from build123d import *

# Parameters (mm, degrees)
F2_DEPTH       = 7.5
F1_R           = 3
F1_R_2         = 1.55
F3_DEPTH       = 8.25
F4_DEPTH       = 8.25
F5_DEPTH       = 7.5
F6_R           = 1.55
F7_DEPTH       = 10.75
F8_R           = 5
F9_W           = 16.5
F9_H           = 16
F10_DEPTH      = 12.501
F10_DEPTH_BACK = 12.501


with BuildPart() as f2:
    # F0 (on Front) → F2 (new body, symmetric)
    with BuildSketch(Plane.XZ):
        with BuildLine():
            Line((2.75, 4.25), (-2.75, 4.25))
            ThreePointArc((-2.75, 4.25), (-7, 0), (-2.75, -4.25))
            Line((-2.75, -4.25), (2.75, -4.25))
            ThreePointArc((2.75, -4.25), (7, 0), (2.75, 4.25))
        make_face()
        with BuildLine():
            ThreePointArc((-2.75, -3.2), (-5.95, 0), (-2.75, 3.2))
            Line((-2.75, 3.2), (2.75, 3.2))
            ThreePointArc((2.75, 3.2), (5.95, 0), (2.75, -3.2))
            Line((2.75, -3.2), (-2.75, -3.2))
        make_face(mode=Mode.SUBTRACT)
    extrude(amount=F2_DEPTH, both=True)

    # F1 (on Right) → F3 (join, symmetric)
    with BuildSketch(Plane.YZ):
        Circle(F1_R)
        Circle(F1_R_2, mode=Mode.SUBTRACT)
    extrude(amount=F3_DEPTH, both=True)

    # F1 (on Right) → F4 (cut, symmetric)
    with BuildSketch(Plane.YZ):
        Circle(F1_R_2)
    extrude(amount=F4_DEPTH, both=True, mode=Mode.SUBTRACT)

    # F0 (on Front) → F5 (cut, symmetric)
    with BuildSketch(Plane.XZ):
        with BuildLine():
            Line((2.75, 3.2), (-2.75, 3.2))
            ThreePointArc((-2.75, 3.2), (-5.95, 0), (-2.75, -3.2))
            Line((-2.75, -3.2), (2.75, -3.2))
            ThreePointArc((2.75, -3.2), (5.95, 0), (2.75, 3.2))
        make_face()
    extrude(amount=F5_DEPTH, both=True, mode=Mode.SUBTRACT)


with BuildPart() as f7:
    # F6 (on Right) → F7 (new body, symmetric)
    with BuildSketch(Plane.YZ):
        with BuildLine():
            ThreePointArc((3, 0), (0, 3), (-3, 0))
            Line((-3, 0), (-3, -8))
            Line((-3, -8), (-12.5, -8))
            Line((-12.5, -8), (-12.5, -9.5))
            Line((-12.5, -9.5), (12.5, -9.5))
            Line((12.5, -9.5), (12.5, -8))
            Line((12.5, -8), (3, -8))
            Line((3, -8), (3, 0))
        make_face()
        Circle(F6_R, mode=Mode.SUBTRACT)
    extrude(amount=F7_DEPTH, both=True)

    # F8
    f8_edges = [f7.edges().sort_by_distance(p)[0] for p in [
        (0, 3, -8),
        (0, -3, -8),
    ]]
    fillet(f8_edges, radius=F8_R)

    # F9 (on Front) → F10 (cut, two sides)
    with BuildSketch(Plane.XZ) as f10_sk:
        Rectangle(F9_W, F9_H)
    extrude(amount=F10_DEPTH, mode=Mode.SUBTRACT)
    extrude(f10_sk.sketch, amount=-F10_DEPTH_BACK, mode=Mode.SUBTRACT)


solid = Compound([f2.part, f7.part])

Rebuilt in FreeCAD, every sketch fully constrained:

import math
import FreeCAD as App
import Part
import Sketcher
from FreeCAD import Vector


def edges_at(feature, points):
    """Names of the edges that pass closest to the given points."""
    edges = feature.Shape.Edges
    near = lambda p: min(range(len(edges)), key=lambda i: edges[i].distToShape(Part.Vertex(*p))[0])
    return sorted({f"Edge{near(p) + 1}" for p in points})

doc = App.newDocument("Part")
params = doc.addObject("Spreadsheet::Sheet", "Params")
for row, (alias, value) in enumerate([
    ("sketch1_radius", "3.2 mm"),
    ("sketch1_radius2", "4.25 mm"),
    ("sketch1_width", "5.5 mm"),
    ("pad1_length", "15 mm"),
    ("sketch2_diameter", "6 mm"),
    ("sketch2_diameter2", "3.1 mm"),
    ("pad2_length", "16.5 mm"),
    ("sketch3_diameter", "3.1 mm"),
    ("pocket1_length", "16.5 mm"),
    ("sketch4_radius", "3.2 mm"),
    ("sketch4_width", "5.5 mm"),
    ("pocket2_length", "15 mm"),
    ("sketch5_radius", "3 mm"),
    ("sketch5_diameter", "3.1 mm"),
    ("sketch5_width", "25 mm"),
    ("sketch5_height", "8 mm"),
    ("sketch5_height2", "1.5 mm"),
    ("pad3_length", "21.5 mm"),
    ("fillet_radius", "5 mm"),
    ("sketch6_height", "16 mm"),
    ("sketch6_width", "16.5 mm"),
], start=1):
    params.set(f"A{row}", alias)
    params.set(f"B{row}", "=" + value)
    params.setAlias(f"B{row}", alias)

body = doc.addObject("PartDesign::Body", "Body")

# Sketch on XZ plane
sketch1 = body.newObject("Sketcher::SketchObject", "Sketch")
sketch1.AttachmentSupport = (doc.getObject("XZ_Plane"), [""])
sketch1.MapMode = "FlatFace"
sketch1.addGeometry([
    Part.LineSegment(Vector(2.8, 4.2, 0), Vector(-2.8, 4.2, 0)),  # 0
    Part.ArcOfCircle(Part.Circle(Vector(-2.8, 0, 0), Vector(0, 0, 1), 4.2), math.radians(90), math.radians(270)),  # 1
    Part.LineSegment(Vector(-2.8, -4.2, 0), Vector(2.8, -4.2, 0)),  # 2
    Part.ArcOfCircle(Part.Circle(Vector(2.8, 0, 0), Vector(0, 0, 1), 4.2), math.radians(-90), math.radians(90)),  # 3
    Part.LineSegment(Vector(2.8, -3.2, 0), Vector(-2.8, -3.2, 0)),  # 4
    Part.ArcOfCircle(Part.Circle(Vector(-2.8, 0, 0), Vector(0, 0, 1), 3.2), math.radians(90), math.radians(270)),  # 5
    Part.LineSegment(Vector(-2.8, 3.2, 0), Vector(2.8, 3.2, 0)),  # 6
    Part.ArcOfCircle(Part.Circle(Vector(2.8, 0, 0), Vector(0, 0, 1), 3.2), math.radians(-90), math.radians(90)),  # 7
], False)
sketch1.addConstraint([
    Sketcher.Constraint("Tangent", 0, 2, 1, 1),
    Sketcher.Constraint("Tangent", 1, 2, 2, 1),
    Sketcher.Constraint("Tangent", 2, 2, 3, 1),
    Sketcher.Constraint("Tangent", 3, 2, 0, 1),
    Sketcher.Constraint("Tangent", 4, 2, 5, 2),
    Sketcher.Constraint("Tangent", 5, 1, 6, 1),
    Sketcher.Constraint("Tangent", 6, 2, 7, 2),
    Sketcher.Constraint("Tangent", 7, 1, 4, 1),
    Sketcher.Constraint("Horizontal", 0),
    Sketcher.Constraint("Horizontal", 2),
    Sketcher.Constraint("Horizontal", 4),
    Sketcher.Constraint("Horizontal", 6),
    Sketcher.Constraint("Coincident", 5, 3, 1, 3),
    Sketcher.Constraint("Symmetric", 1, 3, 3, 3, -1, 1),
    Sketcher.Constraint("Vertical", 7, 3, 2, 2),
    Sketcher.Constraint("Radius", 5, 3.2),
    Sketcher.Constraint("Radius", 1, 4.25),
    Sketcher.Constraint("DistanceX", 0, 2, 0, 1, 5.5),
])
sketch1.setExpression("Constraints[15]", "Params.sketch1_radius")
sketch1.setExpression("Constraints[16]", "Params.sketch1_radius2")
sketch1.setExpression("Constraints[17]", "Params.sketch1_width")
pad1 = body.newObject("PartDesign::Pad", "Pad")
pad1.Profile = sketch1
pad1.setExpression("Length", "Params.pad1_length")
pad1.Midplane = True

# Sketch on YZ plane
sketch2 = body.newObject("Sketcher::SketchObject", "Sketch001")
sketch2.AttachmentSupport = (doc.getObject("YZ_Plane"), [""])
sketch2.MapMode = "FlatFace"
sketch2.addGeometry([
    Part.Circle(Vector(0, 0, 0), Vector(0, 0, 1), 3),
    Part.Circle(Vector(0, 0, 0), Vector(0, 0, 1), 1.6),
], False)
sketch2.addConstraint([
    Sketcher.Constraint("Coincident", 0, 3, -1, 1),
    Sketcher.Constraint("Coincident", 1, 3, -1, 1),
    Sketcher.Constraint("Diameter", 0, 6.0),
    Sketcher.Constraint("Diameter", 1, 3.1),
])
sketch2.setExpression("Constraints[2]", "Params.sketch2_diameter")
sketch2.setExpression("Constraints[3]", "Params.sketch2_diameter2")
pad2 = body.newObject("PartDesign::Pad", "Pad001")
pad2.Profile = sketch2
pad2.setExpression("Length", "Params.pad2_length")
pad2.Midplane = True

# Sketch on YZ plane
sketch3 = body.newObject("Sketcher::SketchObject", "Sketch002")
sketch3.AttachmentSupport = (doc.getObject("YZ_Plane"), [""])
sketch3.MapMode = "FlatFace"
sketch3.addGeometry(Part.Circle(Vector(0, 0, 0), Vector(0, 0, 1), 1.6), False)
sketch3.addConstraint([
    Sketcher.Constraint("Coincident", 0, 3, -1, 1),
    Sketcher.Constraint("Diameter", 0, 3.1),
])
sketch3.setExpression("Constraints[1]", "Params.sketch3_diameter")
pocket1 = body.newObject("PartDesign::Pocket", "Pocket")
pocket1.Profile = sketch3
pocket1.setExpression("Length", "Params.pocket1_length")
pocket1.Midplane = True

# Sketch on XZ plane
sketch4 = body.newObject("Sketcher::SketchObject", "Sketch003")
sketch4.AttachmentSupport = (doc.getObject("XZ_Plane"), [""])
sketch4.MapMode = "FlatFace"
sketch4.addGeometry([
    Part.LineSegment(Vector(2.8, 3.2, 0), Vector(-2.8, 3.2, 0)),
    Part.ArcOfCircle(Part.Circle(Vector(-2.8, 0, 0), Vector(0, 0, 1), 3.2), math.radians(90), math.radians(270)),
    Part.LineSegment(Vector(-2.8, -3.2, 0), Vector(2.8, -3.2, 0)),
    Part.ArcOfCircle(Part.Circle(Vector(2.8, 0, 0), Vector(0, 0, 1), 3.2), math.radians(-90), math.radians(90)),
], False)
sketch4.addConstraint([
    Sketcher.Constraint("Tangent", 0, 2, 1, 1),
    Sketcher.Constraint("Tangent", 1, 2, 2, 1),
    Sketcher.Constraint("Tangent", 2, 2, 3, 1),
    Sketcher.Constraint("Tangent", 3, 2, 0, 1),
    Sketcher.Constraint("Horizontal", 0),
    Sketcher.Constraint("Horizontal", 2),
    Sketcher.Constraint("Symmetric", 1, 3, 3, 3, -1, 1),
    Sketcher.Constraint("Radius", 1, 3.2),
    Sketcher.Constraint("DistanceX", 0, 2, 0, 1, 5.5),
])
sketch4.setExpression("Constraints[7]", "Params.sketch4_radius")
sketch4.setExpression("Constraints[8]", "Params.sketch4_width")
pocket2 = body.newObject("PartDesign::Pocket", "Pocket001")
pocket2.Profile = sketch4
pocket2.setExpression("Length", "Params.pocket2_length")
pocket2.Midplane = True
body2 = doc.addObject("PartDesign::Body", "Body001")

# Sketch on YZ plane
sketch5 = body2.newObject("Sketcher::SketchObject", "Sketch004")
sketch5.AttachmentSupport = (doc.getObject("YZ_Plane001"), [""])
sketch5.MapMode = "FlatFace"
sketch5.addGeometry([
    Part.ArcOfCircle(Part.Circle(Vector(0, 0, 0), Vector(0, 0, 1), 3), math.radians(0), math.radians(180)),  # 0
    Part.LineSegment(Vector(-3, 0, 0), Vector(-3, -8, 0)),  # 1
    Part.LineSegment(Vector(-3, -8, 0), Vector(-12.5, -8, 0)),  # 2
    Part.LineSegment(Vector(-12.5, -8, 0), Vector(-12.5, -9.5, 0)),  # 3
    Part.LineSegment(Vector(-12.5, -9.5, 0), Vector(12.5, -9.5, 0)),  # 4
    Part.LineSegment(Vector(12.5, -9.5, 0), Vector(12.5, -8, 0)),  # 5
    Part.LineSegment(Vector(12.5, -8, 0), Vector(3, -8, 0)),  # 6
    Part.LineSegment(Vector(3, -8, 0), Vector(3, 0, 0)),  # 7
    Part.Circle(Vector(0, 0, 0), Vector(0, 0, 1), 1.6),  # 8
], False)
sketch5.addConstraint([
    Sketcher.Constraint("Tangent", 0, 2, 1, 1),
    Sketcher.Constraint("Coincident", 1, 2, 2, 1),
    Sketcher.Constraint("Coincident", 2, 2, 3, 1),
    Sketcher.Constraint("Coincident", 3, 2, 4, 1),
    Sketcher.Constraint("Coincident", 4, 2, 5, 1),
    Sketcher.Constraint("Coincident", 5, 2, 6, 1),
    Sketcher.Constraint("Coincident", 6, 2, 7, 1),
    Sketcher.Constraint("Tangent", 7, 2, 0, 1),
    Sketcher.Constraint("Vertical", 1),
    Sketcher.Constraint("Horizontal", 2),
    Sketcher.Constraint("Vertical", 3),
    Sketcher.Constraint("Horizontal", 4),
    Sketcher.Constraint("Vertical", 5),
    Sketcher.Constraint("Horizontal", 6),
    Sketcher.Constraint("Vertical", 7),
    Sketcher.Constraint("Coincident", 0, 3, -1, 1),
    Sketcher.Constraint("Coincident", 8, 3, -1, 1),
    Sketcher.Constraint("Symmetric", 2, 2, 5, 2, -2),
    Sketcher.Constraint("Radius", 0, 3.0),
    Sketcher.Constraint("Diameter", 8, 3.1),
    Sketcher.Constraint("DistanceX", 4, 1, 4, 2, 25.0),
    Sketcher.Constraint("DistanceY", 1, 2, 1, 1, 8.0),
    Sketcher.Constraint("DistanceY", 3, 2, 3, 1, 1.5),
])
sketch5.setExpression("Constraints[18]", "Params.sketch5_radius")
sketch5.setExpression("Constraints[19]", "Params.sketch5_diameter")
sketch5.setExpression("Constraints[20]", "Params.sketch5_width")
sketch5.setExpression("Constraints[21]", "Params.sketch5_height")
sketch5.setExpression("Constraints[22]", "Params.sketch5_height2")
pad3 = body2.newObject("PartDesign::Pad", "Pad002")
pad3.Profile = sketch5
pad3.setExpression("Length", "Params.pad3_length")
pad3.Midplane = True
doc.recompute()

fillet = body2.newObject("PartDesign::Fillet", "Fillet")
fillet.Base = (pad3, edges_at(pad3, [(0, 3, -8), (0, -3, -8)]))
fillet.setExpression("Radius", "Params.fillet_radius")

# Sketch on XZ plane
sketch6 = body2.newObject("Sketcher::SketchObject", "Sketch005")
sketch6.AttachmentSupport = (doc.getObject("XZ_Plane001"), [""])
sketch6.MapMode = "FlatFace"
sketch6.addGeometry([
    Part.LineSegment(Vector(-8, 8, 0), Vector(-8, -8, 0)),
    Part.LineSegment(Vector(-8, -8, 0), Vector(8, -8, 0)),
    Part.LineSegment(Vector(8, -8, 0), Vector(8, 8, 0)),
    Part.LineSegment(Vector(8, 8, 0), Vector(-8, 8, 0)),
], False)
sketch6.addConstraint([
    Sketcher.Constraint("Coincident", 0, 2, 1, 1),
    Sketcher.Constraint("Coincident", 1, 2, 2, 1),
    Sketcher.Constraint("Coincident", 2, 2, 3, 1),
    Sketcher.Constraint("Coincident", 3, 2, 0, 1),
    Sketcher.Constraint("Vertical", 0),
    Sketcher.Constraint("Horizontal", 1),
    Sketcher.Constraint("Vertical", 2),
    Sketcher.Constraint("Horizontal", 3),
    Sketcher.Constraint("Symmetric", 0, 2, 2, 2, -1, 1),
    Sketcher.Constraint("DistanceY", 0, 2, 0, 1, 16.0),
    Sketcher.Constraint("DistanceX", 1, 1, 1, 2, 16.5),
])
sketch6.setExpression("Constraints[9]", "Params.sketch6_height")
sketch6.setExpression("Constraints[10]", "Params.sketch6_width")
pocket3 = body2.newObject("PartDesign::Pocket", "Pocket002")
pocket3.Profile = sketch6
pocket3.Type = "ThroughAll"
pocket3.Midplane = True

doc.recompute()
